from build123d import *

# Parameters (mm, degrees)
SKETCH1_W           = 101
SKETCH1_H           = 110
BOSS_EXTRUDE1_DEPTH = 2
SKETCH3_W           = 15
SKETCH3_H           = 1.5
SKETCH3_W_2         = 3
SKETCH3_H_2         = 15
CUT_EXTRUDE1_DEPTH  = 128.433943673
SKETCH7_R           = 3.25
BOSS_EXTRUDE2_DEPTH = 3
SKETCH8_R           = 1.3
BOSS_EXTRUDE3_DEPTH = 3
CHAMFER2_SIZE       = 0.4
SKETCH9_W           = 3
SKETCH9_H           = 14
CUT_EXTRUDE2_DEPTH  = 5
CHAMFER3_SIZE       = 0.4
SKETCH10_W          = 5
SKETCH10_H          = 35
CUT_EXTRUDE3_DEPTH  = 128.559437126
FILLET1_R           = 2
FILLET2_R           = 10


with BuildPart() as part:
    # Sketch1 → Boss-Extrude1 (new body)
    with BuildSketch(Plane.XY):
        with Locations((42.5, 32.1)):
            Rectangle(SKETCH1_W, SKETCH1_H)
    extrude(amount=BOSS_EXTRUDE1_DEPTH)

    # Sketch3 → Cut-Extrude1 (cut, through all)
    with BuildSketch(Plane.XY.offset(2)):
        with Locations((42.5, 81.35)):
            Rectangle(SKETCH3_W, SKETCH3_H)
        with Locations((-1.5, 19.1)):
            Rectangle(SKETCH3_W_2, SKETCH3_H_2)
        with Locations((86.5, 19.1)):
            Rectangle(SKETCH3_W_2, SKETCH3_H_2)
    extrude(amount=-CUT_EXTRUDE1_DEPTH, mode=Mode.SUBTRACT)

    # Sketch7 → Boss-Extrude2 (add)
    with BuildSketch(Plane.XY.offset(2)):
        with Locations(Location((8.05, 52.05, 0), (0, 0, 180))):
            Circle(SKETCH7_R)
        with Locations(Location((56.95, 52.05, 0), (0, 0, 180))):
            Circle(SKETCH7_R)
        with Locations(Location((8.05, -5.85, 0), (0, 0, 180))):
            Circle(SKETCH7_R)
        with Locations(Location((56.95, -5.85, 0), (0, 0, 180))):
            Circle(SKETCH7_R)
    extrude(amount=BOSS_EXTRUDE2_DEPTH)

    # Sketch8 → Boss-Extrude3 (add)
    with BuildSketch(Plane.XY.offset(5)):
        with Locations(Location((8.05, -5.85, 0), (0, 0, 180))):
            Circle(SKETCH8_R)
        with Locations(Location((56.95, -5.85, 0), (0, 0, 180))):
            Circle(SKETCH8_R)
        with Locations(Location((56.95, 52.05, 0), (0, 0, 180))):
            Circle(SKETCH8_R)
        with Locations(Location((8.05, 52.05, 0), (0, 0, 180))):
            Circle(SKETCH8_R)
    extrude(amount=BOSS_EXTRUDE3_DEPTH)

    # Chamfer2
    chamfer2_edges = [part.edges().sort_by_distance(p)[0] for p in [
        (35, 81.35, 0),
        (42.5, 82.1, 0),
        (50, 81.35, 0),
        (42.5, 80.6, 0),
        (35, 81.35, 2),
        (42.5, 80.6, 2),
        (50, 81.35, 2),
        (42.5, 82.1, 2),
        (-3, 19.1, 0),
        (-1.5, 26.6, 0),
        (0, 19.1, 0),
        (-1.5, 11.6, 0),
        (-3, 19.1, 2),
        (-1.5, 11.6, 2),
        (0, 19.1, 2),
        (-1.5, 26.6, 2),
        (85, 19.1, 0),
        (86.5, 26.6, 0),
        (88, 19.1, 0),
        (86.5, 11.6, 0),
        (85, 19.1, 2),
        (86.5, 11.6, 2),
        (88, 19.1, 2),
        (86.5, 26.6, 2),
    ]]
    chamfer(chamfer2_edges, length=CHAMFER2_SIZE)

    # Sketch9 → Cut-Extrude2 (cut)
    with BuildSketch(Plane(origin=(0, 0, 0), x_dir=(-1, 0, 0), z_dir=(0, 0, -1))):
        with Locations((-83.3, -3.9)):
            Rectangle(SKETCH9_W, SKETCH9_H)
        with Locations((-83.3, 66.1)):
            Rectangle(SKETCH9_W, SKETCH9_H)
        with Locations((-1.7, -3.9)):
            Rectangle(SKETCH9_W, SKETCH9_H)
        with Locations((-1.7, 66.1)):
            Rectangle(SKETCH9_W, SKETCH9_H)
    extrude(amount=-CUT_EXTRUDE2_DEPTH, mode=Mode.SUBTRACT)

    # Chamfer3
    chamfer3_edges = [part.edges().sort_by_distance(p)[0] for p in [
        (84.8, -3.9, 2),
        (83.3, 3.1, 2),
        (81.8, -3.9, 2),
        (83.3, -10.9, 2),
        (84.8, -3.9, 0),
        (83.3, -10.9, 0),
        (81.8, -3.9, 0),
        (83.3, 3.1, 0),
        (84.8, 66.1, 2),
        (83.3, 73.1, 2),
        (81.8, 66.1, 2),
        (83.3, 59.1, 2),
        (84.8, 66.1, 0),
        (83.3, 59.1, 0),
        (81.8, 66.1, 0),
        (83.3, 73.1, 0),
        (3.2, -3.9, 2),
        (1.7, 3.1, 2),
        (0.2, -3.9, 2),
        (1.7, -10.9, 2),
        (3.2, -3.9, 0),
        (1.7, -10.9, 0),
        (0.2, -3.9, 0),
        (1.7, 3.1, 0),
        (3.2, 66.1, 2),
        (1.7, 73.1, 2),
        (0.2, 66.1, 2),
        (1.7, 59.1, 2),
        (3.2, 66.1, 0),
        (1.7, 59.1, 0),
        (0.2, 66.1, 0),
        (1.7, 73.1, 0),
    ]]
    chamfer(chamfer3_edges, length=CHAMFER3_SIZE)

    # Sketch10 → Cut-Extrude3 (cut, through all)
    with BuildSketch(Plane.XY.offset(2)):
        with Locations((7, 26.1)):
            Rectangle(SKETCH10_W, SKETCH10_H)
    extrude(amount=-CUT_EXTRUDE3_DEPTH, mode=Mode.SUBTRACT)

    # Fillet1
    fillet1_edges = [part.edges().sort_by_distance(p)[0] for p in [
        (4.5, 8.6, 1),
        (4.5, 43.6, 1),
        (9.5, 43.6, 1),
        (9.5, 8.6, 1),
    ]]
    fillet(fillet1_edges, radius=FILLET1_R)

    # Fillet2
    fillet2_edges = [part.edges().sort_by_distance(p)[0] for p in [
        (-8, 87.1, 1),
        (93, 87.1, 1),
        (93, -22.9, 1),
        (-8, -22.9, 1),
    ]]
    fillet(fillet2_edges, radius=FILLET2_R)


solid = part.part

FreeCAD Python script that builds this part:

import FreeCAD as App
import Part
import Sketcher


def edges_at(feature, points):
    """Names of the edges that pass closest to the given points."""
    edges = feature.Shape.Edges
    near = lambda p: min(range(len(edges)), key=lambda i: edges[i].distToShape(Part.Vertex(*p))[0])
    return sorted({f"Edge{near(p) + 1}" for p in points})

doc = App.newDocument("Part")
body = doc.addObject("PartDesign::Body", "Body")

# Sketch on XY plane
sketch1 = doc.addObject("Sketcher::SketchObject", "Sketch")
body.addObject(sketch1)
sketch1.AttachmentSupport = (doc.XY_Plane, [""])
sketch1.MapMode = "FlatFace"
sketch1.addGeometry(Part.LineSegment(App.Vector(-8, 87, 0), App.Vector(-8, -23, 0)), False)
sketch1.addGeometry(Part.LineSegment(App.Vector(-8, -23, 0), App.Vector(93, -23, 0)), False)
sketch1.addGeometry(Part.LineSegment(App.Vector(93, -23, 0), App.Vector(93, 87, 0)), False)
sketch1.addGeometry(Part.LineSegment(App.Vector(93, 87, 0), App.Vector(-8, 87, 0)), False)
sketch1.addConstraint(Sketcher.Constraint("Coincident", 0, 2, 1, 1))
sketch1.addConstraint(Sketcher.Constraint("Coincident", 1, 2, 2, 1))
sketch1.addConstraint(Sketcher.Constraint("Coincident", 2, 2, 3, 1))
sketch1.addConstraint(Sketcher.Constraint("Coincident", 3, 2, 0, 1))
sketch1.addConstraint(Sketcher.Constraint("Vertical", 0))
sketch1.addConstraint(Sketcher.Constraint("Horizontal", 1))
sketch1.addConstraint(Sketcher.Constraint("Vertical", 2))
sketch1.addConstraint(Sketcher.Constraint("Horizontal", 3))
sketch1.addConstraint(Sketcher.Constraint("DistanceX", 1, 1, 1, 2, 101.0))
sketch1.addConstraint(Sketcher.Constraint("DistanceY", 0, 2, 0, 1, 110.0))
sketch1.addConstraint(Sketcher.Constraint("DistanceX", 0, 2, -1, 1, 8.0))
sketch1.addConstraint(Sketcher.Constraint("DistanceY", 0, 2, -1, 1, 22.9))
pad1 = doc.addObject("PartDesign::Pad", "Pad")
body.addObject(pad1)
pad1.Profile = sketch1
pad1.Length = 2

# Sketch on XY plane
sketch2 = doc.addObject("Sketcher::SketchObject", "Sketch001")
body.addObject(sketch2)
sketch2.AttachmentSupport = (doc.XY_Plane, [""])
sketch2.MapMode = "FlatFace"
sketch2.AttachmentOffset = App.Placement(App.Vector(0, 0, 2), App.Rotation())
sketch2.addGeometry(Part.LineSegment(App.Vector(35, 82.1, 0), App.Vector(35, 80.6, 0)), False)
sketch2.addGeometry(Part.LineSegment(App.Vector(35, 80.6, 0), App.Vector(50, 80.6, 0)), False)
sketch2.addGeometry(Part.LineSegment(App.Vector(50, 80.6, 0), App.Vector(50, 82.1, 0)), False)
sketch2.addGeometry(Part.LineSegment(App.Vector(50, 82.1, 0), App.Vector(35, 82.1, 0)), False)
sketch2.addGeometry(Part.LineSegment(App.Vector(-3, 26.6, 0), App.Vector(-3, 11.6, 0)), False)
sketch2.addGeometry(Part.LineSegment(App.Vector(-3, 11.6, 0), App.Vector(0, 11.6, 0)), False)
sketch2.addGeometry(Part.LineSegment(App.Vector(0, 11.6, 0), App.Vector(0, 26.6, 0)), False)
sketch2.addGeometry(Part.LineSegment(App.Vector(0, 26.6, 0), App.Vector(-3, 26.6, 0)), False)
sketch2.addGeometry(Part.LineSegment(App.Vector(85, 26.6, 0), App.Vector(85, 11.6, 0)), False)
sketch2.addGeometry(Part.LineSegment(App.Vector(85, 11.6, 0), App.Vector(88, 11.6, 0)), False)
sketch2.addGeometry(Part.LineSegment(App.Vector(88, 11.6, 0), App.Vector(88, 26.6, 0)), False)
sketch2.addGeometry(Part.LineSegment(App.Vector(88, 26.6, 0), App.Vector(85, 26.6, 0)), False)
sketch2.addConstraint(Sketcher.Constraint("Coincident", 0, 2, 1, 1))
sketch2.addConstraint(Sketcher.Constraint("Coincident", 1, 2, 2, 1))
sketch2.addConstraint(Sketcher.Constraint("Coincident", 2, 2, 3, 1))
sketch2.addConstraint(Sketcher.Constraint("Coincident", 3, 2, 0, 1))
sketch2.addConstraint(Sketcher.Constraint("Coincident", 4, 2, 5, 1))
sketch2.addConstraint(Sketcher.Constraint("Coincident", 5, 2, 6, 1))
sketch2.addConstraint(Sketcher.Constraint("Coincident", 6, 2, 7, 1))
sketch2.addConstraint(Sketcher.Constraint("Coincident", 7, 2, 4, 1))
sketch2.addConstraint(Sketcher.Constraint("Coincident", 8, 2, 9, 1))
sketch2.addConstraint(Sketcher.Constraint("Coincident", 9, 2, 10, 1))
sketch2.addConstraint(Sketcher.Constraint("Coincident", 10, 2, 11, 1))
sketch2.addConstraint(Sketcher.Constraint("Coincident", 11, 2, 8, 1))
sketch2.addConstraint(Sketcher.Constraint("Vertical", 0))
sketch2.addConstraint(Sketcher.Constraint("Horizontal", 1))
sketch2.addConstraint(Sketcher.Constraint("Vertical", 2))
sketch2.addConstraint(Sketcher.Constraint("Horizontal", 3))
sketch2.addConstraint(Sketcher.Constraint("Vertical", 4))
sketch2.addConstraint(Sketcher.Constraint("Horizontal", 5))
sketch2.addConstraint(Sketcher.Constraint("Vertical", 6))
sketch2.addConstraint(Sketcher.Constraint("Horizontal", 7))
sketch2.addConstraint(Sketcher.Constraint("Vertical", 8))
sketch2.addConstraint(Sketcher.Constraint("Horizontal", 9))
sketch2.addConstraint(Sketcher.Constraint("Vertical", 10))
sketch2.addConstraint(Sketcher.Constraint("Horizontal", 11))
sketch2.addConstraint(Sketcher.Constraint("PointOnObject", 5, 2, -2))
sketch2.addConstraint(Sketcher.Constraint("Horizontal", 5, 2, 8, 2))
sketch2.addConstraint(Sketcher.Constraint("Horizontal", 7, 2, 10, 2))
sketch2.addConstraint(Sketcher.Constraint("Equal", 7, 9))
sketch2.addConstraint(Sketcher.Constraint("Equal", 3, 4))
sketch2.addConstraint(Sketcher.Constraint("DistanceX", 1, 1, 1, 2, 15.0))
sketch2.addConstraint(Sketcher.Constraint("DistanceX", 5, 1, 5, 2, 3.0))
sketch2.addConstraint(Sketcher.Constraint("DistanceY", 0, 2, 0, 1, 1.5))
sketch2.addConstraint(Sketcher.Constraint("DistanceX", -1, 1, 0, 2, 35.0))
sketch2.addConstraint(Sketcher.Constraint("DistanceX", -1, 1, 8, 2, 85.0))
sketch2.addConstraint(Sketcher.Constraint("DistanceY", 4, 2, 0, 2, 69.0))
sketch2.addConstraint(Sketcher.Constraint("DistanceY", -1, 1, 0, 2, 80.6))
pocket1 = doc.addObject("PartDesign::Pocket", "Pocket")
body.addObject(pocket1)
pocket1.Profile = sketch2
pocket1.Type = "ThroughAll"

# Sketch on XY plane
sketch3 = doc.addObject("Sketcher::SketchObject", "Sketch002")
body.addObject(sketch3)
sketch3.AttachmentSupport = (doc.XY_Plane, [""])
sketch3.MapMode = "FlatFace"
sketch3.AttachmentOffset = App.Placement(App.Vector(0, 0, 2), App.Rotation())
sketch3.addGeometry(Part.Circle(App.Vector(8.1, 52, 0), App.Vector(0, 0, 1), 3.2), False)
sketch3.addGeometry(Part.Circle(App.Vector(57, 52, 0), App.Vector(0, 0, 1), 3.2), False)
sketch3.addGeometry(Part.Circle(App.Vector(8.1, -5.8, 0), App.Vector(0, 0, 1), 3.2), False)
sketch3.addGeometry(Part.Circle(App.Vector(57, -5.8, 0), App.Vector(0, 0, 1), 3.2), False)
sketch3.addConstraint(Sketcher.Constraint("Equal", 0, 1))
sketch3.addConstraint(Sketcher.Constraint("Equal", 1, 2))
sketch3.addConstraint(Sketcher.Constraint("Equal", 2, 3))
sketch3.addConstraint(Sketcher.Constraint("Horizontal", 0, 3, 1, 3))
sketch3.addConstraint(Sketcher.Constraint("Horizontal", 2, 3, 3, 3))
sketch3.addConstraint(Sketcher.Constraint("Vertical", 0, 3, 2, 3))
sketch3.addConstraint(Sketcher.Constraint("Vertical", 1, 3, 3, 3))
sketch3.addConstraint(Sketcher.Constraint("Diameter", 0, 6.5))
sketch3.addConstraint(Sketcher.Constraint("DistanceX", 0, 3, 1, 3, 48.9))
sketch3.addConstraint(Sketcher.Constraint("DistanceY", 2, 3, 0, 3, 57.9))
sketch3.addConstraint(Sketcher.Constraint("DistanceX", -1, 1, 0, 3, 8.05))
sketch3.addConstraint(Sketcher.Constraint("DistanceY", -1, 1, 0, 3, 52.05))
pad2 = doc.addObject("PartDesign::Pad", "Pad001")
body.addObject(pad2)
pad2.Profile = sketch3
pad2.Length = 3

# Sketch on XY plane
sketch4 = doc.addObject("Sketcher::SketchObject", "Sketch003")
body.addObject(sketch4)
sketch4.AttachmentSupport = (doc.XY_Plane, [""])
sketch4.MapMode = "FlatFace"
sketch4.AttachmentOffset = App.Placement(App.Vector(0, 0, 5), App.Rotation())
sketch4.addGeometry(Part.Circle(App.Vector(8.1, -5.8, 0), App.Vector(0, 0, 1), 1.3), False)
sketch4.addGeometry(Part.Circle(App.Vector(57, -5.8, 0), App.Vector(0, 0, 1), 1.3), False)
sketch4.addGeometry(Part.Circle(App.Vector(57, 52, 0), App.Vector(0, 0, 1), 1.3), False)
sketch4.addGeometry(Part.Circle(App.Vector(8.1, 52, 0), App.Vector(0, 0, 1), 1.3), False)
sketch4.addConstraint(Sketcher.Constraint("Equal", 0, 1))
sketch4.addConstraint(Sketcher.Constraint("Equal", 1, 2))
sketch4.addConstraint(Sketcher.Constraint("Equal", 2, 3))
sketch4.addConstraint(Sketcher.Constraint("Horizontal", 0, 3, 1, 3))
sketch4.addConstraint(Sketcher.Constraint("Horizontal", 2, 3, 3, 3))
sketch4.addConstraint(Sketcher.Constraint("Vertical", 1, 3, 2, 3))
sketch4.addConstraint(Sketcher.Constraint("Vertical", 0, 3, 3, 3))
sketch4.addConstraint(Sketcher.Constraint("Diameter", 0, 2.6))
sketch4.addConstraint(Sketcher.Constraint("DistanceX", 0, 3, 1, 3, 48.9))
sketch4.addConstraint(Sketcher.Constraint("DistanceY", 1, 3, 2, 3, 57.9))
sketch4.addConstraint(Sketcher.Constraint("DistanceX", -1, 1, 0, 3, 8.05))
sketch4.addConstraint(Sketcher.Constraint("DistanceY", 0, 3, -1, 1, 5.85))
pad3 = doc.addObject("PartDesign::Pad", "Pad002")
body.addObject(pad3)
pad3.Profile = sketch4
pad3.Length = 3
doc.recompute()

chamfer = doc.addObject("PartDesign::Chamfer", "Chamfer")
body.addObject(chamfer)
chamfer.Base = (pad3, edges_at(pad3, [
    (35, 81.35, 0),
    (42.5, 82.1, 0),
    (50, 81.35, 0),
    (42.5, 80.6, 0),
    (35, 81.35, 2),
    (42.5, 80.6, 2),
    (50, 81.35, 2),
    (42.5, 82.1, 2),
    (-3, 19.1, 0),
    (-1.5, 26.6, 0),
    (0, 19.1, 0),
    (-1.5, 11.6, 0),
    (-3, 19.1, 2),
    (-1.5, 11.6, 2),
    (0, 19.1, 2),
    (-1.5, 26.6, 2),
    (85, 19.1, 0),
    (86.5, 26.6, 0),
    (88, 19.1, 0),
    (86.5, 11.6, 0),
    (85, 19.1, 2),
    (86.5, 11.6, 2),
    (88, 19.1, 2),
    (86.5, 26.6, 2),
]))
chamfer.Size = 0.4

# Sketch on XY plane
sketch5 = doc.addObject("Sketcher::SketchObject", "Sketch004")
body.addObject(sketch5)
sketch5.AttachmentSupport = (doc.XY_Plane, [""])
sketch5.MapMode = "FlatFace"
sketch5.addGeometry(Part.LineSegment(App.Vector(84.8, 3.1, 0), App.Vector(84.8, -10.9, 0)), False)
sketch5.addGeometry(Part.LineSegment(App.Vector(84.8, -10.9, 0), App.Vector(81.8, -10.9, 0)), False)
sketch5.addGeometry(Part.LineSegment(App.Vector(81.8, -10.9, 0), App.Vector(81.8, 3.1, 0)), False)
sketch5.addGeometry(Part.LineSegment(App.Vector(81.8, 3.1, 0), App.Vector(84.8, 3.1, 0)), False)
sketch5.addGeometry(Part.LineSegment(App.Vector(84.8, 73.1, 0), App.Vector(84.8, 59.1, 0)), False)
sketch5.addGeometry(Part.LineSegment(App.Vector(84.8, 59.1, 0), App.Vector(81.8, 59.1, 0)), False)
sketch5.addGeometry(Part.LineSegment(App.Vector(81.8, 59.1, 0), App.Vector(81.8, 73.1, 0)), False)
sketch5.addGeometry(Part.LineSegment(App.Vector(81.8, 73.1, 0), App.Vector(84.8, 73.1, 0)), False)
sketch5.addGeometry(Part.LineSegment(App.Vector(3.2, 3.1, 0), App.Vector(3.2, -10.9, 0)), False)
sketch5.addGeometry(Part.LineSegment(App.Vector(3.2, -10.9, 0), App.Vector(0.2, -10.9, 0)), False)
sketch5.addGeometry(Part.LineSegment(App.Vector(0.2, -10.9, 0), App.Vector(0.2, 3.1, 0)), False)
sketch5.addGeometry(Part.LineSegment(App.Vector(0.2, 3.1, 0), App.Vector(3.2, 3.1, 0)), False)
sketch5.addGeometry(Part.LineSegment(App.Vector(3.2, 73.1, 0), App.Vector(3.2, 59.1, 0)), False)
sketch5.addGeometry(Part.LineSegment(App.Vector(3.2, 59.1, 0), App.Vector(0.2, 59.1, 0)), False)
sketch5.addGeometry(Part.LineSegment(App.Vector(0.2, 59.1, 0), App.Vector(0.2, 73.1, 0)), False)
sketch5.addGeometry(Part.LineSegment(App.Vector(0.2, 73.1, 0), App.Vector(3.2, 73.1, 0)), False)
sketch5.addConstraint(Sketcher.Constraint("Coincident", 0, 2, 1, 1))
sketch5.addConstraint(Sketcher.Constraint("Coincident", 1, 2, 2, 1))
sketch5.addConstraint(Sketcher.Constraint("Coincident", 2, 2, 3, 1))
sketch5.addConstraint(Sketcher.Constraint("Coincident", 3, 2, 0, 1))
sketch5.addConstraint(Sketcher.Constraint("Coincident", 4, 2, 5, 1))
sketch5.addConstraint(Sketcher.Constraint("Coincident", 5, 2, 6, 1))
sketch5.addConstraint(Sketcher.Constraint("Coincident", 6, 2, 7, 1))
sketch5.addConstraint(Sketcher.Constraint("Coincident", 7, 2, 4, 1))
sketch5.addConstraint(Sketcher.Constraint("Coincident", 8, 2, 9, 1))
sketch5.addConstraint(Sketcher.Constraint("Coincident", 9, 2, 10, 1))
sketch5.addConstraint(Sketcher.Constraint("Coincident", 10, 2, 11, 1))
sketch5.addConstraint(Sketcher.Constraint("Coincident", 11, 2, 8, 1))
sketch5.addConstraint(Sketcher.Constraint("Coincident", 12, 2, 13, 1))
sketch5.addConstraint(Sketcher.Constraint("Coincident", 13, 2, 14, 1))
sketch5.addConstraint(Sketcher.Constraint("Coincident", 14, 2, 15, 1))
sketch5.addConstraint(Sketcher.Constraint("Coincident", 15, 2, 12, 1))
sketch5.addConstraint(Sketcher.Constraint("Vertical", 0))
sketch5.addConstraint(Sketcher.Constraint("Horizontal", 1))
sketch5.addConstraint(Sketcher.Constraint("Vertical", 2))
sketch5.addConstraint(Sketcher.Constraint("Horizontal", 3))
sketch5.addConstraint(Sketcher.Constraint("Vertical", 4))
sketch5.addConstraint(Sketcher.Constraint("Horizontal", 5))
sketch5.addConstraint(Sketcher.Constraint("Vertical", 6))
sketch5.addConstraint(Sketcher.Constraint("Horizontal", 7))
sketch5.addConstraint(Sketcher.Constraint("Vertical", 8))
sketch5.addConstraint(Sketcher.Constraint("Horizontal", 9))
sketch5.addConstraint(Sketcher.Constraint("Vertical", 10))
sketch5.addConstraint(Sketcher.Constraint("Horizontal", 11))
sketch5.addConstraint(Sketcher.Constraint("Vertical", 12))
sketch5.addConstraint(Sketcher.Constraint("Horizontal", 13))
sketch5.addConstraint(Sketcher.Constraint("Vertical", 14))
sketch5.addConstraint(Sketcher.Constraint("Horizontal", 15))
sketch5.addConstraint(Sketcher.Constraint("Horizontal", 1, 2, 8, 2))
sketch5.addConstraint(Sketcher.Constraint("Horizontal", 3, 2, 10, 2))
sketch5.addConstraint(Sketcher.Constraint("Horizontal", 5, 2, 12, 2))
sketch5.addConstraint(Sketcher.Constraint("Horizontal", 7, 2, 14, 2))
sketch5.addConstraint(Sketcher.Constraint("Vertical", 3, 2, 4, 2))
sketch5.addConstraint(Sketcher.Constraint("Vertical", 2, 2, 5, 2))
sketch5.addConstraint(Sketcher.Constraint("Vertical", 11, 2, 12, 2))
sketch5.addConstraint(Sketcher.Constraint("Vertical", 10, 2, 13, 2))
sketch5.addConstraint(Sketcher.Constraint("Equal", 7, 9))
sketch5.addConstraint(Sketcher.Constraint("Equal", 2, 4))
sketch5.addConstraint(Sketcher.Constraint("DistanceX", 1, 2, 1, 1, 3.0))
sketch5.addConstraint(Sketcher.Constraint("DistanceY", 0, 2, 0, 1, 14.0))
sketch5.addConstraint(Sketcher.Constraint("DistanceY", 3, 2, 4, 2, 56.0))
sketch5.addConstraint(Sketcher.Constraint("DistanceX", -1, 1, 0, 2, 84.8))
sketch5.addConstraint(Sketcher.Constraint("DistanceY", 0, 2, -1, 1, 10.9))
sketch5.addConstraint(Sketcher.Constraint("DistanceX", -1, 1, 8, 2, 3.2))
pocket2 = doc.addObject("PartDesign::Pocket", "Pocket001")
body.addObject(pocket2)
pocket2.Profile = sketch5
pocket2.Length = 5
pocket2.Reversed = True
doc.recompute()

chamfer2 = doc.addObject("PartDesign::Chamfer", "Chamfer001")
body.addObject(chamfer2)
chamfer2.Base = (pocket2, edges_at(pocket2, [
    (84.8, -3.9, 2),
    (83.3, 3.1, 2),
    (81.8, -3.9, 2),
    (83.3, -10.9, 2),
    (84.8, -3.9, 0),
    (83.3, -10.9, 0),
    (81.8, -3.9, 0),
    (83.3, 3.1, 0),
    (84.8, 66.1, 2),
    (83.3, 73.1, 2),
    (81.8, 66.1, 2),
    (83.3, 59.1, 2),
    (84.8, 66.1, 0),
    (83.3, 59.1, 0),
    (81.8, 66.1, 0),
    (83.3, 73.1, 0),
    (3.2, -3.9, 2),
    (1.7, 3.1, 2),
    (0.2, -3.9, 2),
    (1.7, -10.9, 2),
    (3.2, -3.9, 0),
    (1.7, -10.9, 0),
    (0.2, -3.9, 0),
    (1.7, 3.1, 0),
    (3.2, 66.1, 2),
    (1.7, 73.1, 2),
    (0.2, 66.1, 2),
    (1.7, 59.1, 2),
    (3.2, 66.1, 0),
    (1.7, 59.1, 0),
    (0.2, 66.1, 0),
    (1.7, 73.1, 0),
]))
chamfer2.Size = 0.4

# Sketch on XY plane
sketch6 = doc.addObject("Sketcher::SketchObject", "Sketch005")
body.addObject(sketch6)
sketch6.AttachmentSupport = (doc.XY_Plane, [""])
sketch6.MapMode = "FlatFace"
sketch6.AttachmentOffset = App.Placement(App.Vector(0, 0, 2), App.Rotation())
sketch6.addGeometry(Part.LineSegment(App.Vector(4, 44, 0), App.Vector(4, 9, 0)), False)
sketch6.addGeometry(Part.LineSegment(App.Vector(4, 9, 0), App.Vector(10, 9, 0)), False)
sketch6.addGeometry(Part.LineSegment(App.Vector(10, 9, 0), App.Vector(10, 44, 0)), False)
sketch6.addGeometry(Part.LineSegment(App.Vector(10, 44, 0), App.Vector(4, 44, 0)), False)
sketch6.addConstraint(Sketcher.Constraint("Coincident", 0, 2, 1, 1))
sketch6.addConstraint(Sketcher.Constraint("Coincident", 1, 2, 2, 1))
sketch6.addConstraint(Sketcher.Constraint("Coincident", 2, 2, 3, 1))
sketch6.addConstraint(Sketcher.Constraint("Coincident", 3, 2, 0, 1))
sketch6.addConstraint(Sketcher.Constraint("Vertical", 0))
sketch6.addConstraint(Sketcher.Constraint("Horizontal", 1))
sketch6.addConstraint(Sketcher.Constraint("Vertical", 2))
sketch6.addConstraint(Sketcher.Constraint("Horizontal", 3))
sketch6.addConstraint(Sketcher.Constraint("DistanceX", 1, 1, 1, 2, 5.0))
sketch6.addConstraint(Sketcher.Constraint("DistanceY", 0, 2, 0, 1, 35.0))
sketch6.addConstraint(Sketcher.Constraint("DistanceX", -1, 1, 0, 2, 4.5))
sketch6.addConstraint(Sketcher.Constraint("DistanceY", -1, 1, 0, 2, 8.6))
pocket3 = doc.addObject("PartDesign::Pocket", "Pocket002")
body.addObject(pocket3)
pocket3.Profile = sketch6
pocket3.Type = "ThroughAll"
doc.recompute()

fillet = doc.addObject("PartDesign::Fillet", "Fillet")
body.addObject(fillet)
fillet.Base = (pocket3, edges_at(pocket3, [
    (4.5, 8.6, 1),
    (4.5, 43.6, 1),
    (9.5, 43.6, 1),
    (9.5, 8.6, 1),
]))
fillet.Radius = 2
doc.recompute()

fillet2 = doc.addObject("PartDesign::Fillet", "Fillet001")
body.addObject(fillet2)
fillet2.Base = (fillet, edges_at(fillet, [
    (-8, 87.1, 1),
    (93, 87.1, 1),
    (93, -22.9, 1),
    (-8, -22.9, 1),
]))
fillet2.Radius = 10

doc.recompute()
